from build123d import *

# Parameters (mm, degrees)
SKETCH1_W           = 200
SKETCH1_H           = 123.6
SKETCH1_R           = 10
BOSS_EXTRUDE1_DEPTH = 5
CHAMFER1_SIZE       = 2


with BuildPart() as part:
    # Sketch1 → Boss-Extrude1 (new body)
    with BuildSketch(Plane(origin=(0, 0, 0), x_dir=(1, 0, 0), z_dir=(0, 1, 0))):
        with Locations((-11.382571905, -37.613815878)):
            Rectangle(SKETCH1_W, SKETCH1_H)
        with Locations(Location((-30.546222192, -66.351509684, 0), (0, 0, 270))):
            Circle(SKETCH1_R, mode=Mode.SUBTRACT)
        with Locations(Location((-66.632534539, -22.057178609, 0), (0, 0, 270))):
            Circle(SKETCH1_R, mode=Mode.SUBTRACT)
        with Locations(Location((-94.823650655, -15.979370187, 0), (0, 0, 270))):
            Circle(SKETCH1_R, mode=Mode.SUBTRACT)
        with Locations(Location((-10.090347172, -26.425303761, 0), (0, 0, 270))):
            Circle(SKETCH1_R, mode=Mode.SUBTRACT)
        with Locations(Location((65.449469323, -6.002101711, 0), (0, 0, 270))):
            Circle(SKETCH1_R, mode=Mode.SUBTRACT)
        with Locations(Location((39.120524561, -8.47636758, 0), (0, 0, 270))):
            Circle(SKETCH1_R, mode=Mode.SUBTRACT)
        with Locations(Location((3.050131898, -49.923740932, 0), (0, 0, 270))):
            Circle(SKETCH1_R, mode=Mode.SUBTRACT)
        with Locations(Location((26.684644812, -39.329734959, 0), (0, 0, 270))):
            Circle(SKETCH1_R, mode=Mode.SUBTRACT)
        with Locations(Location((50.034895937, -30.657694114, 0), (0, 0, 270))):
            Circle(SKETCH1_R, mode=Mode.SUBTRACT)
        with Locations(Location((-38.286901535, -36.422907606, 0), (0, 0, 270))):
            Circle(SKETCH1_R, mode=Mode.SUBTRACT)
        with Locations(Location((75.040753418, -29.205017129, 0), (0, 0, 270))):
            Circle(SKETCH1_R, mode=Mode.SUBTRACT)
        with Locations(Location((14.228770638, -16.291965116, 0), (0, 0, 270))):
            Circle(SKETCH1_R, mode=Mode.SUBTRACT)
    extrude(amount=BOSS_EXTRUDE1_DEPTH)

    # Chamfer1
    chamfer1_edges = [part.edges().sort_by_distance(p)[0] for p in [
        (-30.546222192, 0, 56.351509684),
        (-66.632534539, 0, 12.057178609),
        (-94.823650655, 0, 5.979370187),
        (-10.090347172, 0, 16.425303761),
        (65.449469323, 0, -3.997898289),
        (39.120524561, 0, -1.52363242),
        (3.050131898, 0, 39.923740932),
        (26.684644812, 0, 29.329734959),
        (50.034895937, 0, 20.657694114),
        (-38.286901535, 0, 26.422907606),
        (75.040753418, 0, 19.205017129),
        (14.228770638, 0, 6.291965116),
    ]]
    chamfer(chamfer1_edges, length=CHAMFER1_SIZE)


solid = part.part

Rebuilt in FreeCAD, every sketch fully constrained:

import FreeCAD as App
import Part
import Sketcher

V = App.Vector


def edges_at(feature, points):
    """Names of the edges that pass closest to the given points."""
    edges = feature.Shape.Edges
    near = lambda p: min(range(len(edges)), key=lambda i: edges[i].distToShape(Part.Vertex(*p))[0])
    return sorted({f"Edge{near(p) + 1}" for p in points})


def add_polygon(sketch, points):
    """Adds a closed chain of lines whose ends are joined by coincident constraints."""
    first, n = sketch.GeometryCount, len(points)
    for a, b in zip(points, points[1:] + points[:1]):
        sketch.addGeometry(Part.LineSegment(App.Vector(*a, 0), App.Vector(*b, 0)), False)
    for i in range(n):
        sketch.addConstraint(Sketcher.Constraint("Coincident", first + i, 2, first + (i + 1) % n, 1))

doc = App.newDocument("Part")
params = doc.addObject("Spreadsheet::Sheet", "Params")
for row, (alias, value) in enumerate([
    ("sketch1_diameter", "20 mm"),
    ("sketch1_width", "200 mm"),
    ("sketch1_height", "123.6 mm"),
    ("pad1_length", "5 mm"),
    ("chamfer_size", "2 mm"),
], start=1):
    params.set(f"A{row}", alias)
    params.set(f"B{row}", "=" + value)
    params.setAlias(f"B{row}", alias)

body = doc.addObject("PartDesign::Body", "Body")

sketch1 = body.newObject("Sketcher::SketchObject", "Sketch")
sketch1.AttachmentSupport = (doc.getObject("XZ_Plane"), [""])
sketch1.MapMode = "FlatFace"
add_polygon(sketch1, [(-111, -24), (-111, 99), (89, 99), (89, -24)])
sketch1.addGeometry(Part.Circle(V(-31, 66, 0), V(0, 0, 1), 10), False)
sketch1.addGeometry(Part.Circle(V(-38, 36, 0), V(0, 0, 1), 10), False)
sketch1.addGeometry(Part.Circle(V(3, 50, 0), V(0, 0, 1), 10), False)
sketch1.addGeometry(Part.Circle(V(27, 39, 0), V(0, 0, 1), 10), False)
sketch1.addGeometry(Part.Circle(V(-67, 22, 0), V(0, 0, 1), 10), False)
sketch1.addGeometry(Part.Circle(V(-10, 26, 0), V(0, 0, 1), 10), False)
sketch1.addGeometry(Part.Circle(V(-95, 16, 0), V(0, 0, 1), 10), False)
sketch1.addGeometry(Part.Circle(V(14, 16, 0), V(0, 0, 1), 10), False)
sketch1.addGeometry(Part.Circle(V(50, 31, 0), V(0, 0, 1), 10), False)
sketch1.addGeometry(Part.Circle(V(75, 29, 0), V(0, 0, 1), 10), False)
sketch1.addGeometry(Part.Circle(V(39, 8, 0), V(0, 0, 1), 10), False)
sketch1.addGeometry(Part.Circle(V(65, 6, 0), V(0, 0, 1), 10), False)
sketch1.addConstraint([
    Sketcher.Constraint("Vertical", 0),
    Sketcher.Constraint("Horizontal", 1),
    Sketcher.Constraint("Vertical", 2),
    Sketcher.Constraint("Horizontal", 3),
    Sketcher.Constraint("Equal", 4, 5),
    Sketcher.Constraint("Equal", 5, 6),
    Sketcher.Constraint("Equal", 6, 7),
    Sketcher.Constraint("Equal", 7, 8),
    Sketcher.Constraint("Equal", 8, 9),
    Sketcher.Constraint("Equal", 9, 10),
    Sketcher.Constraint("Equal", 10, 11),
    Sketcher.Constraint("Equal", 11, 12),
    Sketcher.Constraint("Equal", 12, 13),
    Sketcher.Constraint("Equal", 13, 14),
    Sketcher.Constraint("Equal", 14, 15),
    Sketcher.Constraint("Diameter", 4, 20.0),
    Sketcher.Constraint("DistanceX", 1, 1, 1, 2, 200.0),
    Sketcher.Constraint("DistanceY", 0, 1, 0, 2, 123.6),
    Sketcher.Constraint("DistanceX", 5, 3, -1, 1, 38.286902),
    Sketcher.Constraint("DistanceY", -1, 1, 15, 3, 6.002102),
    Sketcher.Constraint("DistanceX", 9, 3, 13, 3, 85.131101),
    Sketcher.Constraint("DistanceX", 11, 3, 15, 3, 51.220699),
    Sketcher.Constraint("DistanceY", 13, 3, 1, 2, 70.208799),
    Sketcher.Constraint("DistanceY", -1, 1, 4, 3, 66.35151),
    Sketcher.Constraint("DistanceX", -1, 1, 6, 3, 3.050132),
    Sketcher.Constraint("DistanceY", -1, 1, 6, 3, 49.923741),
    Sketcher.Constraint("DistanceY", -1, 1, 8, 3, 22.057179),
    Sketcher.Constraint("DistanceX", 10, 3, -1, 1, 94.823651),
    Sketcher.Constraint("DistanceY", -1, 1, 10, 3, 15.97937),
    Sketcher.Constraint("DistanceX", -1, 1, 11, 3, 14.228771),
    Sketcher.Constraint("DistanceX", 0, 2, -1, 1, 111.382572),
    Sketcher.Constraint("DistanceX", 5, 3, 4, 3, 7.740679),
    Sketcher.Constraint("DistanceY", 8, 3, 5, 3, 14.365729),
    Sketcher.Constraint("DistanceX", 8, 3, 7, 3, 93.317179),
    Sketcher.Constraint("DistanceX", 9, 3, 6, 3, 13.140479),
    Sketcher.Constraint("DistanceX", 9, 3, 7, 3, 36.774992),
    Sketcher.Constraint("DistanceY", 9, 3, 7, 3, 12.904431),
    Sketcher.Constraint("DistanceY", 11, 3, 7, 3, 23.03777),
    Sketcher.Constraint("DistanceX", 7, 3, 12, 3, 23.350251),
    Sketcher.Constraint("DistanceY", 12, 3, 7, 3, 8.672041),
    Sketcher.Constraint("DistanceX", 14, 3, 12, 3, 10.914371),
    Sketcher.Constraint("DistanceY", 14, 3, 13, 3, 20.72865),
    Sketcher.Constraint("DistanceY", 5, 3, 0, 2, 62.990908),
    Sketcher.Constraint("DistanceY", 12, 3, 1, 2, 68.756122),
])
sketch1.setExpression("Constraints[19]", "Params.sketch1_diameter")
sketch1.setExpression("Constraints[20]", "Params.sketch1_width")
sketch1.setExpression("Constraints[21]", "Params.sketch1_height")
pad1 = body.newObject("PartDesign::Pad", "Pad")
pad1.Profile = sketch1
pad1.setExpression("Length", "Params.pad1_length")
pad1.Reversed = True
doc.recompute()

chamfer = body.newObject("PartDesign::Chamfer", "Chamfer")
chamfer.Base = (pad1, edges_at(pad1, [
    (-30.546, 0, 56.352),
    (-66.633, 0, 12.057),
    (-94.824, 0, 5.979),
    (-10.09, 0, 16.425),
    (65.449, 0, -3.998),
    (39.121, 0, -1.524),
    (3.05, 0, 39.924),
    (26.685, 0, 29.33),
    (50.035, 0, 20.658),
    (-38.287, 0, 26.423),
    (75.041, 0, 19.205),
    (14.229, 0, 6.292),
]))
chamfer.setExpression("Size", "Params.chamfer_size")

doc.recompute()
